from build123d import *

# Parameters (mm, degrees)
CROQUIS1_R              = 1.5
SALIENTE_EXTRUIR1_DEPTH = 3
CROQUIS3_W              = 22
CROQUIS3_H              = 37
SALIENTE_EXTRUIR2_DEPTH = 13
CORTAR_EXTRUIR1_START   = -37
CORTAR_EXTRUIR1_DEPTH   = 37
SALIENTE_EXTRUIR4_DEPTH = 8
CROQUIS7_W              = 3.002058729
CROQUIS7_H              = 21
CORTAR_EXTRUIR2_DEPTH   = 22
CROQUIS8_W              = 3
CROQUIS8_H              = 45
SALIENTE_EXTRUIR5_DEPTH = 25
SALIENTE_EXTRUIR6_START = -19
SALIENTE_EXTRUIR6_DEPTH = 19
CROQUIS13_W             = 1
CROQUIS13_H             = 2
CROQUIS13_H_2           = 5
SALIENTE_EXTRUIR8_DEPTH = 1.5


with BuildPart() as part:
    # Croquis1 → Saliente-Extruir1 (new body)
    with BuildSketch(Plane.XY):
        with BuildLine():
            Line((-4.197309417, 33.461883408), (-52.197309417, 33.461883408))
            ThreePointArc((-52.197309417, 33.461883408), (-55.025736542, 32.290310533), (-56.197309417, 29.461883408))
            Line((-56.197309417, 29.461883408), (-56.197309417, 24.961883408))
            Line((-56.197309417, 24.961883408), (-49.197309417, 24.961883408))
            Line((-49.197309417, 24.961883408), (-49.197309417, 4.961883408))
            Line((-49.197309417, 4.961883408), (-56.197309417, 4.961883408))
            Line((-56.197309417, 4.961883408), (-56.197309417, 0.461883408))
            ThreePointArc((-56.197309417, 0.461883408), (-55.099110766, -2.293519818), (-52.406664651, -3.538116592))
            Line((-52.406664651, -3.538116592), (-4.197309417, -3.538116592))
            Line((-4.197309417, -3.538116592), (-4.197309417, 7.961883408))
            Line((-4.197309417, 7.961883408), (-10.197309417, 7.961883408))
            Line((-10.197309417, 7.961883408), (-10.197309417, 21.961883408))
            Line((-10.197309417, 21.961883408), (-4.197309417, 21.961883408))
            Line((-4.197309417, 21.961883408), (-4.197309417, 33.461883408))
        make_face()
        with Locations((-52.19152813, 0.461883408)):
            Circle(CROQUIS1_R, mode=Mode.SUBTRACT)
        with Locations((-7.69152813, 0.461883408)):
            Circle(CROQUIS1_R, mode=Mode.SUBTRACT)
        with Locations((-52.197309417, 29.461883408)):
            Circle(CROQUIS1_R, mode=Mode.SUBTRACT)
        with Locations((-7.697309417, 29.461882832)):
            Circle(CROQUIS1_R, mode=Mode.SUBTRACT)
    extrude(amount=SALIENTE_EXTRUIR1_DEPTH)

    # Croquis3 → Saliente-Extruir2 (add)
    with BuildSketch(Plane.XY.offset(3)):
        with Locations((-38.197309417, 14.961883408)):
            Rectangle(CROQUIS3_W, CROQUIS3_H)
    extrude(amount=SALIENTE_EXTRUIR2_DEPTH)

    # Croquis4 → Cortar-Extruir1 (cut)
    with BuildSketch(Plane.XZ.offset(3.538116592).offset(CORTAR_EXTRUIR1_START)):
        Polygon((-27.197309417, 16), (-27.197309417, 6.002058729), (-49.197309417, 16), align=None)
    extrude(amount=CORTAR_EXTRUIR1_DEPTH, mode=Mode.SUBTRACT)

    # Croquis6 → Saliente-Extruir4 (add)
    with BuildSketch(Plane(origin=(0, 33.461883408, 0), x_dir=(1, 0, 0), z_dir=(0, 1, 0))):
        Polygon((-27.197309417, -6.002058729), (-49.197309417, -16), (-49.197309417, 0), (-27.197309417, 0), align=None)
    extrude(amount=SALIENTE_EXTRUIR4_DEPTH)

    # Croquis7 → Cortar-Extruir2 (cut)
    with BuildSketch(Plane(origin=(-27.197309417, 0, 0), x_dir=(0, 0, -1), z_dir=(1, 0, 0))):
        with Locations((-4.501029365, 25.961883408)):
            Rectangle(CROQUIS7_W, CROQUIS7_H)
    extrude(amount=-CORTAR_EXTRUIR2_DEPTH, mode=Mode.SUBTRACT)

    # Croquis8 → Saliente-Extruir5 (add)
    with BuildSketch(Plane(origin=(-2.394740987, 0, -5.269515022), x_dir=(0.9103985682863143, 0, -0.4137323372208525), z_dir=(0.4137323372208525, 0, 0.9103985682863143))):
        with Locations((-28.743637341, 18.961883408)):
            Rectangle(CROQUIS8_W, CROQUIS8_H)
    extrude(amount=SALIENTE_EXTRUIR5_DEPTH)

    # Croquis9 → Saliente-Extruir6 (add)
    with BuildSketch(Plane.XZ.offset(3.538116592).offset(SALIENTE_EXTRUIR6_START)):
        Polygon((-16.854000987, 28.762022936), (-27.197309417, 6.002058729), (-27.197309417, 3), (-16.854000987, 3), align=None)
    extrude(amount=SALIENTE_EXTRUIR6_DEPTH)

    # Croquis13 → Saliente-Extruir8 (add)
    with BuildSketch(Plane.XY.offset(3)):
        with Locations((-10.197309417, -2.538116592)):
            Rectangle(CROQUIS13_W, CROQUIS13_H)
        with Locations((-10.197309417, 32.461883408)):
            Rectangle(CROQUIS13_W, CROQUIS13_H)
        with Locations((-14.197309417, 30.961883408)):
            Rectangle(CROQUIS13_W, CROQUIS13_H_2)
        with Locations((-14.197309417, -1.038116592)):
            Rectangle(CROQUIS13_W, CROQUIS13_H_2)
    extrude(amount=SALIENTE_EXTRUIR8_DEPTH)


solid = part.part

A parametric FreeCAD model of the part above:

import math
import FreeCAD as App
import Part
import Sketcher

doc = App.newDocument("Part")
body = doc.addObject("PartDesign::Body", "Body")

# Sketch on XY plane
sketch1 = body.newObject("Sketcher::SketchObject", "Sketch")
sketch1.AttachmentSupport = (doc.getObject("XY_Plane"), [""])
sketch1.MapMode = "FlatFace"
sketch1.addGeometry(Part.LineSegment(App.Vector(-4.197309, 33.461883, 0), App.Vector(-52.197309, 33.461883, 0)), False)
sketch1.addGeometry(Part.ArcOfCircle(Part.Circle(App.Vector(-52.197309, 29.461883, 0), App.Vector(0, 0, 1), 4), math.radians(90), math.radians(180)), False)
sketch1.addGeometry(Part.LineSegment(App.Vector(-56.197309, 29.461883, 0), App.Vector(-56.197309, 24.961883, 0)), False)
sketch1.addGeometry(Part.LineSegment(App.Vector(-56.197309, 24.961883, 0), App.Vector(-49.197309, 24.961883, 0)), False)
sketch1.addGeometry(Part.LineSegment(App.Vector(-49.197309, 24.961883, 0), App.Vector(-49.197309, 4.961883, 0)), False)
sketch1.addGeometry(Part.LineSegment(App.Vector(-49.197309, 4.961883, 0), App.Vector(-56.197309, 4.961883, 0)), False)
sketch1.addGeometry(Part.LineSegment(App.Vector(-56.197309, 4.961883, 0), App.Vector(-56.197309, 0.461883, 0)), False)
sketch1.addGeometry(Part.ArcOfCircle(Part.Circle(App.Vector(-52.191528, 0.461883, 0), App.Vector(0, 0, 1), 4.005781), math.radians(180), math.radians(266.921363)), False)
sketch1.addGeometry(Part.LineSegment(App.Vector(-52.406665, -3.538117, 0), App.Vector(-4.197309, -3.538117, 0)), False)
sketch1.addGeometry(Part.LineSegment(App.Vector(-4.197309, -3.538117, 0), App.Vector(-4.197309, 7.961883, 0)), False)
sketch1.addGeometry(Part.LineSegment(App.Vector(-4.197309, 7.961883, 0), App.Vector(-10.197309, 7.961883, 0)), False)
sketch1.addGeometry(Part.LineSegment(App.Vector(-10.197309, 7.961883, 0), App.Vector(-10.197309, 21.961883, 0)), False)
sketch1.addGeometry(Part.LineSegment(App.Vector(-10.197309, 21.961883, 0), App.Vector(-4.197309, 21.961883, 0)), False)
sketch1.addGeometry(Part.LineSegment(App.Vector(-4.197309, 21.961883, 0), App.Vector(-4.197309, 33.461883, 0)), False)
sketch1.addGeometry(Part.Circle(App.Vector(-52.191528, 0.461883, 0), App.Vector(0, 0, 1), 1.5), False)
sketch1.addGeometry(Part.Circle(App.Vector(-7.691528, 0.461883, 0), App.Vector(0, 0, 1), 1.5), False)
sketch1.addGeometry(Part.Circle(App.Vector(-52.197309, 29.461883, 0), App.Vector(0, 0, 1), 1.5), False)
sketch1.addGeometry(Part.Circle(App.Vector(-7.697309, 29.461883, 0), App.Vector(0, 0, 1), 1.5), False)
sketch1.addConstraint(Sketcher.Constraint("Tangent", 0, 2, 1, 1))
sketch1.addConstraint(Sketcher.Constraint("Tangent", 1, 2, 2, 1))
sketch1.addConstraint(Sketcher.Constraint("Coincident", 2, 2, 3, 1))
sketch1.addConstraint(Sketcher.Constraint("Coincident", 3, 2, 4, 1))
sketch1.addConstraint(Sketcher.Constraint("Coincident", 4, 2, 5, 1))
sketch1.addConstraint(Sketcher.Constraint("Coincident", 5, 2, 6, 1))
sketch1.addConstraint(Sketcher.Constraint("Tangent", 6, 2, 7, 1))
sketch1.addConstraint(Sketcher.Constraint("Coincident", 7, 2, 8, 1))
sketch1.addConstraint(Sketcher.Constraint("Coincident", 8, 2, 9, 1))
sketch1.addConstraint(Sketcher.Constraint("Coincident", 9, 2, 10, 1))
sketch1.addConstraint(Sketcher.Constraint("Coincident", 10, 2, 11, 1))
sketch1.addConstraint(Sketcher.Constraint("Coincident", 11, 2, 12, 1))
sketch1.addConstraint(Sketcher.Constraint("Coincident", 12, 2, 13, 1))
sketch1.addConstraint(Sketcher.Constraint("Coincident", 13, 2, 0, 1))
sketch1.addConstraint(Sketcher.Constraint("Horizontal", 0))
sketch1.addConstraint(Sketcher.Constraint("Vertical", 2))
sketch1.addConstraint(Sketcher.Constraint("Horizontal", 3))
sketch1.addConstraint(Sketcher.Constraint("Vertical", 4))
sketch1.addConstraint(Sketcher.Constraint("Horizontal", 5))
sketch1.addConstraint(Sketcher.Constraint("Vertical", 6))
sketch1.addConstraint(Sketcher.Constraint("Horizontal", 8))
sketch1.addConstraint(Sketcher.Constraint("Vertical", 9))
sketch1.addConstraint(Sketcher.Constraint("Horizontal", 10))
sketch1.addConstraint(Sketcher.Constraint("Vertical", 11))
sketch1.addConstraint(Sketcher.Constraint("Horizontal", 12))
sketch1.addConstraint(Sketcher.Constraint("Vertical", 13))
sketch1.addConstraint(Sketcher.Constraint("Coincident", 14, 3, 7, 3))
sketch1.addConstraint(Sketcher.Constraint("Coincident", 16, 3, 1, 3))
sketch1.addConstraint(Sketcher.Constraint("Equal", 14, 15))
sketch1.addConstraint(Sketcher.Constraint("Equal", 15, 16))
sketch1.addConstraint(Sketcher.Constraint("Equal", 16, 17))
sketch1.addConstraint(Sketcher.Constraint("Horizontal", 14, 3, 15, 3))
sketch1.addConstraint(Sketcher.Constraint("Horizontal", 16, 3, 17, 3))
sketch1.addConstraint(Sketcher.Constraint("Vertical", 2, 2, 5, 2))
sketch1.addConstraint(Sketcher.Constraint("Vertical", 9, 2, 12, 2))
sketch1.addConstraint(Sketcher.Constraint("Equal", 2, 6))
sketch1.addConstraint(Sketcher.Constraint("Equal", 9, 13))
sketch1.addConstraint(Sketcher.Constraint("Diameter", 14, 3.0))
sketch1.addConstraint(Sketcher.Constraint("Radius", 1, 4.0))
sketch1.addConstraint(Sketcher.Constraint("DistanceX", 0, 2, 0, 1, 48.0))
sketch1.addConstraint(Sketcher.Constraint("DistanceX", 3, 1, 3, 2, 7.0))
sketch1.addConstraint(Sketcher.Constraint("DistanceX", 10, 2, 10, 1, 6.0))
sketch1.addConstraint(Sketcher.Constraint("DistanceY", 4, 2, 4, 1, 20.0))
sketch1.addConstraint(Sketcher.Constraint("DistanceY", 11, 1, 11, 2, 14.0))
sketch1.addConstraint(Sketcher.Constraint("DistanceY", 2, 2, 2, 1, 4.5))
sketch1.addConstraint(Sketcher.Constraint("DistanceY", 9, 1, 9, 2, 11.5))
sketch1.addConstraint(Sketcher.Constraint("DistanceX", 7, 3, 15, 3, 44.5))
sketch1.addConstraint(Sketcher.Constraint("DistanceX", 16, 3, 17, 3, 44.5))
sketch1.addConstraint(Sketcher.Constraint("Radius", 7, 4.005781))
sketch1.addConstraint(Sketcher.Constraint("DistanceX", 1, 3, -1, 1, 52.197309))
sketch1.addConstraint(Sketcher.Constraint("DistanceY", -1, 1, 1, 3, 29.461883))
pad1 = body.newObject("PartDesign::Pad", "Pad")
pad1.Profile = sketch1
pad1.Length = 3

# Sketch on XY plane
sketch2 = body.newObject("Sketcher::SketchObject", "Sketch001")
sketch2.AttachmentSupport = (doc.getObject("XY_Plane"), [""])
sketch2.MapMode = "FlatFace"
sketch2.AttachmentOffset = App.Placement(App.Vector(0, 0, 3), App.Rotation())
sketch2.addGeometry(Part.LineSegment(App.Vector(-49.197309, 33.461883, 0), App.Vector(-49.197309, -3.538117, 0)), False)
sketch2.addGeometry(Part.LineSegment(App.Vector(-49.197309, -3.538117, 0), App.Vector(-27.197309, -3.538117, 0)), False)
sketch2.addGeometry(Part.LineSegment(App.Vector(-27.197309, -3.538117, 0), App.Vector(-27.197309, 33.461883, 0)), False)
sketch2.addGeometry(Part.LineSegment(App.Vector(-27.197309, 33.461883, 0), App.Vector(-49.197309, 33.461883, 0)), False)
sketch2.addConstraint(Sketcher.Constraint("Coincident", 0, 2, 1, 1))
sketch2.addConstraint(Sketcher.Constraint("Coincident", 1, 2, 2, 1))
sketch2.addConstraint(Sketcher.Constraint("Coincident", 2, 2, 3, 1))
sketch2.addConstraint(Sketcher.Constraint("Coincident", 3, 2, 0, 1))
sketch2.addConstraint(Sketcher.Constraint("Vertical", 0))
sketch2.addConstraint(Sketcher.Constraint("Horizontal", 1))
sketch2.addConstraint(Sketcher.Constraint("Vertical", 2))
sketch2.addConstraint(Sketcher.Constraint("Horizontal", 3))
sketch2.addConstraint(Sketcher.Constraint("DistanceX", 1, 1, 1, 2, 22.0))
sketch2.addConstraint(Sketcher.Constraint("DistanceY", 0, 2, 0, 1, 37.0))
sketch2.addConstraint(Sketcher.Constraint("DistanceX", 0, 2, -1, 1, 49.197309))
sketch2.addConstraint(Sketcher.Constraint("DistanceY", 0, 2, -1, 1, 3.538117))
pad2 = body.newObject("PartDesign::Pad", "Pad001")
pad2.Profile = sketch2
pad2.Length = 13

# Sketch on XZ plane
sketch3 = body.newObject("Sketcher::SketchObject", "Sketch002")
sketch3.AttachmentSupport = (doc.getObject("XZ_Plane"), [""])
sketch3.MapMode = "FlatFace"
sketch3.AttachmentOffset = App.Placement(App.Vector(0, 0, -33.461883), App.Rotation())
sketch3.addGeometry(Part.LineSegment(App.Vector(-27.197309, 6.002059, 0), App.Vector(-27.197309, 16, 0)), False)
sketch3.addGeometry(Part.LineSegment(App.Vector(-27.197309, 16, 0), App.Vector(-49.197309, 16, 0)), False)
sketch3.addGeometry(Part.LineSegment(App.Vector(-49.197309, 16, 0), App.Vector(-27.197309, 6.002059, 0)), False)
sketch3.addConstraint(Sketcher.Constraint("Coincident", 0, 2, 1, 1))
sketch3.addConstraint(Sketcher.Constraint("Coincident", 1, 2, 2, 1))
sketch3.addConstraint(Sketcher.Constraint("Coincident", 2, 2, 0, 1))
sketch3.addConstraint(Sketcher.Constraint("Vertical", 0))
sketch3.addConstraint(Sketcher.Constraint("Horizontal", 1))
sketch3.addConstraint(Sketcher.Constraint("DistanceX", 1, 2, 1, 1, 22.0))
sketch3.addConstraint(Sketcher.Constraint("DistanceY", -1, 1, 0, 2, 16.0))
sketch3.addConstraint(Sketcher.Constraint("DistanceY", 0, 1, 0, 2, 9.997941))
sketch3.addConstraint(Sketcher.Constraint("DistanceX", 0, 2, -1, 1, 27.197309))
pocket1 = body.newObject("PartDesign::Pocket", "Pocket")
pocket1.Profile = sketch3
pocket1.Length = 37
pocket1.Reversed = True

# Sketch on XZ plane
sketch4 = body.newObject("Sketcher::SketchObject", "Sketch003")
sketch4.AttachmentSupport = (doc.getObject("XZ_Plane"), [""])
sketch4.MapMode = "FlatFace"
sketch4.AttachmentOffset = App.Placement(App.Vector(0, 0, -33.461883), App.Rotation())
sketch4.addGeometry(Part.LineSegment(App.Vector(-49.197309, 16, 0), App.Vector(-27.197309, 6.002059, 0)), False)
sketch4.addGeometry(Part.LineSegment(App.Vector(-27.197309, 6.002059, 0), App.Vector(-27.197309, 0, 0)), False)
sketch4.addGeometry(Part.LineSegment(App.Vector(-27.197309, 0, 0), App.Vector(-49.197309, 0, 0)), False)
sketch4.addGeometry(Part.LineSegment(App.Vector(-49.197309, 0, 0), App.Vector(-49.197309, 16, 0)), False)
sketch4.addConstraint(Sketcher.Constraint("Coincident", 0, 2, 1, 1))
sketch4.addConstraint(Sketcher.Constraint("Coincident", 1, 2, 2, 1))
sketch4.addConstraint(Sketcher.Constraint("Coincident", 2, 2, 3, 1))
sketch4.addConstraint(Sketcher.Constraint("Coincident", 3, 2, 0, 1))
sketch4.addConstraint(Sketcher.Constraint("Vertical", 1))
sketch4.addConstraint(Sketcher.Constraint("Horizontal", 2))
sketch4.addConstraint(Sketcher.Constraint("Vertical", 3))
sketch4.addConstraint(Sketcher.Constraint("PointOnObject", 1, 2, -1))
sketch4.addConstraint(Sketcher.Constraint("DistanceX", 2, 2, 2, 1, 22.0))
sketch4.addConstraint(Sketcher.Constraint("DistanceY", 3, 1, 3, 2, 16.0))
sketch4.addConstraint(Sketcher.Constraint("DistanceY", 1, 2, 1, 1, 6.002059))
sketch4.addConstraint(Sketcher.Constraint("DistanceX", 0, 2, -1, 1, 27.197309))
pad3 = body.newObject("PartDesign::Pad", "Pad002")
pad3.Profile = sketch4
pad3.Length = 8
pad3.Reversed = True

# Sketch on YZ plane
sketch5 = body.newObject("Sketcher::SketchObject", "Sketch004")
sketch5.AttachmentSupport = (doc.getObject("YZ_Plane"), [""])
sketch5.MapMode = "FlatFace"
sketch5.AttachmentOffset = App.Placement(App.Vector(0, 0, -27.197309), App.Rotation())
sketch5.addGeometry(Part.LineSegment(App.Vector(36.461883, 6.002059, 0), App.Vector(15.461883, 6.002059, 0)), False)
sketch5.addGeometry(Part.LineSegment(App.Vector(15.461883, 6.002059, 0), App.Vector(15.461883, 3, 0)), False)
sketch5.addGeometry(Part.LineSegment(App.Vector(15.461883, 3, 0), App.Vector(36.461883, 3, 0)), False)
sketch5.addGeometry(Part.LineSegment(App.Vector(36.461883, 3, 0), App.Vector(36.461883, 6.002059, 0)), False)
sketch5.addConstraint(Sketcher.Constraint("Coincident", 0, 2, 1, 1))
sketch5.addConstraint(Sketcher.Constraint("Coincident", 1, 2, 2, 1))
sketch5.addConstraint(Sketcher.Constraint("Coincident", 2, 2, 3, 1))
sketch5.addConstraint(Sketcher.Constraint("Coincident", 3, 2, 0, 1))
sketch5.addConstraint(Sketcher.Constraint("Horizontal", 0))
sketch5.addConstraint(Sketcher.Constraint("Vertical", 1))
sketch5.addConstraint(Sketcher.Constraint("Horizontal", 2))
sketch5.addConstraint(Sketcher.Constraint("Vertical", 3))
sketch5.addConstraint(Sketcher.Constraint("DistanceX", 0, 2, 0, 1, 21.0))
sketch5.addConstraint(Sketcher.Constraint("DistanceY", -1, 1, 1, 2, 3.0))
sketch5.addConstraint(Sketcher.Constraint("DistanceY", 1, 2, 1, 1, 3.002059))
sketch5.addConstraint(Sketcher.Constraint("DistanceX", -1, 1, 0, 2, 15.461883))
pocket2 = body.newObject("PartDesign::Pocket", "Pocket001")
pocket2.Profile = sketch5
pocket2.Length = 22

# Sketch on an angled plane
sketch6 = body.newObject("Sketcher::SketchObject", "Sketch005")
sketch6.Placement = App.Placement(App.Vector(-2.394741, 0, -5.269515), App.Rotation(App.Vector(0.910398568, 0, -0.413732337), App.Vector(0, 0.999999999, 0), App.Vector(0.413732337, 0, 0.910398568), "ZXY"))
sketch6.addGeometry(Part.LineSegment(App.Vector(-30.243637, 41.461883, 0), App.Vector(-30.243637, -3.538117, 0)), False)
sketch6.addGeometry(Part.LineSegment(App.Vector(-30.243637, -3.538117, 0), App.Vector(-27.243637, -3.538117, 0)), False)
sketch6.addGeometry(Part.LineSegment(App.Vector(-27.243637, -3.538117, 0), App.Vector(-27.243637, 41.461883, 0)), False)
sketch6.addGeometry(Part.LineSegment(App.Vector(-27.243637, 41.461883, 0), App.Vector(-30.243637, 41.461883, 0)), False)
sketch6.addConstraint(Sketcher.Constraint("Coincident", 0, 2, 1, 1))
sketch6.addConstraint(Sketcher.Constraint("Coincident", 1, 2, 2, 1))
sketch6.addConstraint(Sketcher.Constraint("Coincident", 2, 2, 3, 1))
sketch6.addConstraint(Sketcher.Constraint("Coincident", 3, 2, 0, 1))
sketch6.addConstraint(Sketcher.Constraint("Vertical", 0))
sketch6.addConstraint(Sketcher.Constraint("Horizontal", 1))
sketch6.addConstraint(Sketcher.Constraint("Vertical", 2))
sketch6.addConstraint(Sketcher.Constraint("Horizontal", 3))
sketch6.addConstraint(Sketcher.Constraint("DistanceX", 1, 1, 1, 2, 3.0))
sketch6.addConstraint(Sketcher.Constraint("DistanceY", 0, 2, 0, 1, 45.0))
sketch6.addConstraint(Sketcher.Constraint("DistanceX", 0, 2, -1, 1, 30.243637))
sketch6.addConstraint(Sketcher.Constraint("DistanceY", 0, 2, -1, 1, 3.538117))
pad4 = body.newObject("PartDesign::Pad", "Pad003")
pad4.Profile = sketch6
pad4.Length = 25

# Sketch on XZ plane
sketch7 = body.newObject("Sketcher::SketchObject", "Sketch006")
sketch7.AttachmentSupport = (doc.getObject("XZ_Plane"), [""])
sketch7.MapMode = "FlatFace"
sketch7.AttachmentOffset = App.Placement(App.Vector(0, 0, -15.461883), App.Rotation())
sketch7.addGeometry(Part.LineSegment(App.Vector(-16.854001, 28.762023, 0), App.Vector(-27.197309, 6.002059, 0)), False)
sketch7.addGeometry(Part.LineSegment(App.Vector(-27.197309, 6.002059, 0), App.Vector(-27.197309, 3, 0)), False)
sketch7.addGeometry(Part.LineSegment(App.Vector(-27.197309, 3, 0), App.Vector(-16.854001, 3, 0)), False)
sketch7.addGeometry(Part.LineSegment(App.Vector(-16.854001, 3, 0), App.Vector(-16.854001, 28.762023, 0)), False)
sketch7.addConstraint(Sketcher.Constraint("Coincident", 0, 2, 1, 1))
sketch7.addConstraint(Sketcher.Constraint("Coincident", 1, 2, 2, 1))
sketch7.addConstraint(Sketcher.Constraint("Coincident", 2, 2, 3, 1))
sketch7.addConstraint(Sketcher.Constraint("Coincident", 3, 2, 0, 1))
sketch7.addConstraint(Sketcher.Constraint("Vertical", 1))
sketch7.addConstraint(Sketcher.Constraint("Horizontal", 2))
sketch7.addConstraint(Sketcher.Constraint("Vertical", 3))
sketch7.addConstraint(Sketcher.Constraint("Distance", 0, 25.0))
sketch7.addConstraint(Sketcher.Constraint("DistanceY", -1, 1, 1, 2, 3.0))
sketch7.addConstraint(Sketcher.Constraint("DistanceX", 2, 2, -1, 1, 16.854001))
sketch7.addConstraint(Sketcher.Constraint("DistanceX", 2, 1, 2, 2, 10.343308))
sketch7.addConstraint(Sketcher.Constraint("DistanceY", 1, 2, 1, 1, 3.002059))
pad5 = body.newObject("PartDesign::Pad", "Pad004")
pad5.Profile = sketch7
pad5.Length = 19

# Sketch on XY plane
sketch8 = body.newObject("Sketcher::SketchObject", "Sketch007")
sketch8.AttachmentSupport = (doc.getObject("XY_Plane"), [""])
sketch8.MapMode = "FlatFace"
sketch8.AttachmentOffset = App.Placement(App.Vector(0, 0, 3), App.Rotation())
sketch8.addGeometry(Part.LineSegment(App.Vector(-10.697309, -1.538117, 0), App.Vector(-10.697309, -3.538117, 0)), False)
sketch8.addGeometry(Part.LineSegment(App.Vector(-10.697309, -3.538117, 0), App.Vector(-9.697309, -3.538117, 0)), False)
sketch8.addGeometry(Part.LineSegment(App.Vector(-9.697309, -3.538117, 0), App.Vector(-9.697309, -1.538117, 0)), False)
sketch8.addGeometry(Part.LineSegment(App.Vector(-9.697309, -1.538117, 0), App.Vector(-10.697309, -1.538117, 0)), False)
sketch8.addGeometry(Part.LineSegment(App.Vector(-10.697309, 33.461883, 0), App.Vector(-10.697309, 31.461883, 0)), False)
sketch8.addGeometry(Part.LineSegment(App.Vector(-10.697309, 31.461883, 0), App.Vector(-9.697309, 31.461883, 0)), False)
sketch8.addGeometry(Part.LineSegment(App.Vector(-9.697309, 31.461883, 0), App.Vector(-9.697309, 33.461883, 0)), False)
sketch8.addGeometry(Part.LineSegment(App.Vector(-9.697309, 33.461883, 0), App.Vector(-10.697309, 33.461883, 0)), False)
sketch8.addGeometry(Part.LineSegment(App.Vector(-14.697309, 33.461883, 0), App.Vector(-14.697309, 28.461883, 0)), False)
sketch8.addGeometry(Part.LineSegment(App.Vector(-14.697309, 28.461883, 0), App.Vector(-13.697309, 28.461883, 0)), False)
sketch8.addGeometry(Part.LineSegment(App.Vector(-13.697309, 28.461883, 0), App.Vector(-13.697309, 33.461883, 0)), False)
sketch8.addGeometry(Part.LineSegment(App.Vector(-13.697309, 33.461883, 0), App.Vector(-14.697309, 33.461883, 0)), False)
sketch8.addGeometry(Part.LineSegment(App.Vector(-14.697309, 1.461883, 0), App.Vector(-14.697309, -3.538117, 0)), False)
sketch8.addGeometry(Part.LineSegment(App.Vector(-14.697309, -3.538117, 0), App.Vector(-13.697309, -3.538117, 0)), False)
sketch8.addGeometry(Part.LineSegment(App.Vector(-13.697309, -3.538117, 0), App.Vector(-13.697309, 1.461883, 0)), False)
sketch8.addGeometry(Part.LineSegment(App.Vector(-13.697309, 1.461883, 0), App.Vector(-14.697309, 1.461883, 0)), False)
sketch8.addConstraint(Sketcher.Constraint("Coincident", 0, 2, 1, 1))
sketch8.addConstraint(Sketcher.Constraint("Coincident", 1, 2, 2, 1))
sketch8.addConstraint(Sketcher.Constraint("Coincident", 2, 2, 3, 1))
sketch8.addConstraint(Sketcher.Constraint("Coincident", 3, 2, 0, 1))
sketch8.addConstraint(Sketcher.Constraint("Coincident", 4, 2, 5, 1))
sketch8.addConstraint(Sketcher.Constraint("Coincident", 5, 2, 6, 1))
sketch8.addConstraint(Sketcher.Constraint("Coincident", 6, 2, 7, 1))
sketch8.addConstraint(Sketcher.Constraint("Coincident", 7, 2, 4, 1))
sketch8.addConstraint(Sketcher.Constraint("Coincident", 8, 2, 9, 1))
sketch8.addConstraint(Sketcher.Constraint("Coincident", 9, 2, 10, 1))
sketch8.addConstraint(Sketcher.Constraint("Coincident", 10, 2, 11, 1))
sketch8.addConstraint(Sketcher.Constraint("Coincident", 11, 2, 8, 1))
sketch8.addConstraint(Sketcher.Constraint("Coincident", 12, 2, 13, 1))
sketch8.addConstraint(Sketcher.Constraint("Coincident", 13, 2, 14, 1))
sketch8.addConstraint(Sketcher.Constraint("Coincident", 14, 2, 15, 1))
sketch8.addConstraint(Sketcher.Constraint("Coincident", 15, 2, 12, 1))
sketch8.addConstraint(Sketcher.Constraint("Vertical", 0))
sketch8.addConstraint(Sketcher.Constraint("Horizontal", 1))
sketch8.addConstraint(Sketcher.Constraint("Vertical", 2))
sketch8.addConstraint(Sketcher.Constraint("Horizontal", 3))
sketch8.addConstraint(Sketcher.Constraint("Vertical", 4))
sketch8.addConstraint(Sketcher.Constraint("Horizontal", 5))
sketch8.addConstraint(Sketcher.Constraint("Vertical", 6))
sketch8.addConstraint(Sketcher.Constraint("Horizontal", 7))
sketch8.addConstraint(Sketcher.Constraint("Vertical", 8))
sketch8.addConstraint(Sketcher.Constraint("Horizontal", 9))
sketch8.addConstraint(Sketcher.Constraint("Vertical", 10))
sketch8.addConstraint(Sketcher.Constraint("Horizontal", 11))
sketch8.addConstraint(Sketcher.Constraint("Vertical", 12))
sketch8.addConstraint(Sketcher.Constraint("Horizontal", 13))
sketch8.addConstraint(Sketcher.Constraint("Vertical", 14))
sketch8.addConstraint(Sketcher.Constraint("Horizontal", 15))
sketch8.addConstraint(Sketcher.Constraint("Horizontal", 7, 2, 10, 2))
sketch8.addConstraint(Sketcher.Constraint("Horizontal", 1, 2, 12, 2))
sketch8.addConstraint(Sketcher.Constraint("Vertical", 3, 2, 4, 2))
sketch8.addConstraint(Sketcher.Constraint("Vertical", 2, 2, 5, 2))
sketch8.addConstraint(Sketcher.Constraint("Vertical", 11, 2, 12, 2))
sketch8.addConstraint(Sketcher.Constraint("Vertical", 10, 2, 13, 2))
sketch8.addConstraint(Sketcher.Constraint("Equal", 7, 9))
sketch8.addConstraint(Sketcher.Constraint("Equal", 2, 4))
sketch8.addConstraint(Sketcher.Constraint("Equal", 10, 12))
sketch8.addConstraint(Sketcher.Constraint("DistanceX", 1, 1, 1, 2, 1.0))
sketch8.addConstraint(Sketcher.Constraint("DistanceY", 0, 2, 0, 1, 2.0))
sketch8.addConstraint(Sketcher.Constraint("DistanceY", 8, 2, 8, 1, 5.0))
sketch8.addConstraint(Sketcher.Constraint("DistanceY", 3, 2, 4, 2, 33.0))
sketch8.addConstraint(Sketcher.Constraint("DistanceX", 8, 2, 4, 2, 4.0))
sketch8.addConstraint(Sketcher.Constraint("DistanceX", 0, 2, -1, 1, 10.697309))
sketch8.addConstraint(Sketcher.Constraint("DistanceY", 0, 2, -1, 1, 3.538117))
pad6 = body.newObject("PartDesign::Pad", "Pad005")
pad6.Profile = sketch8
pad6.Length = 1.5

doc.recompute()
